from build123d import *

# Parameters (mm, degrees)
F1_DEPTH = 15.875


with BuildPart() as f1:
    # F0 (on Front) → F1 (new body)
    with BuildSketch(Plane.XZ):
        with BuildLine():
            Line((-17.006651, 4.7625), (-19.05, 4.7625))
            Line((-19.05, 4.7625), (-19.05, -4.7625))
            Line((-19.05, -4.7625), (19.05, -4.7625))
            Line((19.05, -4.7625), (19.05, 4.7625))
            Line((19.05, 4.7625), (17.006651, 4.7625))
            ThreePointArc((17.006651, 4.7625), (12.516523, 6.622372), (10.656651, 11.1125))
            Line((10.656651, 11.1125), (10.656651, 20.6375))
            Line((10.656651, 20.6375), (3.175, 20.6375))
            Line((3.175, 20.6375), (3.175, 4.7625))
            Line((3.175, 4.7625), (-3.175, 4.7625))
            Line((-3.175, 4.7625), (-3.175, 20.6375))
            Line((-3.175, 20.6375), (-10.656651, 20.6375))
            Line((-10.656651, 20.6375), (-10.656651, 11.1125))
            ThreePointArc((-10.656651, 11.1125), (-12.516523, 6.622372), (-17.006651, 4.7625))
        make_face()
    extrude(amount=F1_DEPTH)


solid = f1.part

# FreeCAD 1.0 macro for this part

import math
import FreeCAD as App
import Part
import Sketcher
Q = App.Units.Quantity

doc = App.newDocument("Part")
params = doc.addObject("Spreadsheet::Sheet", "Params")
for row, (alias, value) in enumerate([
    ("sketch1_radius", "0.25 in"),
    ("sketch1_width", "1.5 in"),
    ("sketch1_width2", "0.25 in"),
    ("pad1_length", "0.625 in"),
], start=1):
    params.set(f"A{row}", alias)
    params.set(f"B{row}", "=" + value)
    params.setAlias(f"B{row}", alias)

body = doc.addObject("PartDesign::Body", "Body")

# Sketch on XZ plane
sketch1 = doc.addObject("Sketcher::SketchObject", "Sketch")
body.addObject(sketch1)
sketch1.AttachmentSupport = (doc.XZ_Plane, [""])
sketch1.MapMode = "FlatFace"
sketch1.addGeometry([
    Part.LineSegment(App.Vector(-17, 4.8, 0), App.Vector(-19.1, 4.8, 0)),  # 0
    Part.LineSegment(App.Vector(-19.1, 4.8, 0), App.Vector(-19.1, -4.8, 0)),  # 1
    Part.LineSegment(App.Vector(-19.1, -4.8, 0), App.Vector(19.1, -4.8, 0)),  # 2
    Part.LineSegment(App.Vector(19.1, -4.8, 0), App.Vector(19.1, 4.8, 0)),  # 3
    Part.LineSegment(App.Vector(19.1, 4.8, 0), App.Vector(17, 4.8, 0)),  # 4
    Part.ArcOfCircle(Part.Circle(App.Vector(17, 11.1, 0), App.Vector(0, 0, 1), 6.4), math.radians(-180), math.radians(-90)),  # 5
    Part.LineSegment(App.Vector(10.7, 11.1, 0), App.Vector(10.7, 20.6, 0)),  # 6
    Part.LineSegment(App.Vector(10.7, 20.6, 0), App.Vector(3.2, 20.6, 0)),  # 7
    Part.LineSegment(App.Vector(3.2, 20.6, 0), App.Vector(3.2, 4.8, 0)),  # 8
    Part.LineSegment(App.Vector(3.2, 4.8, 0), App.Vector(-3.2, 4.8, 0)),  # 9
    Part.LineSegment(App.Vector(-3.2, 4.8, 0), App.Vector(-3.2, 20.6, 0)),  # 10
    Part.LineSegment(App.Vector(-3.2, 20.6, 0), App.Vector(-10.7, 20.6, 0)),  # 11
    Part.LineSegment(App.Vector(-10.7, 20.6, 0), App.Vector(-10.7, 11.1, 0)),  # 12
    Part.ArcOfCircle(Part.Circle(App.Vector(-17, 11.1, 0), App.Vector(0, 0, 1), 6.4), math.radians(-90), math.radians(0)),  # 13
], False)
sketch1.addConstraint([
    Sketcher.Constraint("Coincident", 0, 2, 1, 1),
    Sketcher.Constraint("Coincident", 1, 2, 2, 1),
    Sketcher.Constraint("Coincident", 2, 2, 3, 1),
    Sketcher.Constraint("Coincident", 3, 2, 4, 1),
    Sketcher.Constraint("Tangent", 4, 2, 5, 2),
    Sketcher.Constraint("Tangent", 5, 1, 6, 1),
    Sketcher.Constraint("Coincident", 6, 2, 7, 1),
    Sketcher.Constraint("Coincident", 7, 2, 8, 1),
    Sketcher.Constraint("Coincident", 8, 2, 9, 1),
    Sketcher.Constraint("Coincident", 9, 2, 10, 1),
    Sketcher.Constraint("Coincident", 10, 2, 11, 1),
    Sketcher.Constraint("Coincident", 11, 2, 12, 1),
    Sketcher.Constraint("Tangent", 12, 2, 13, 2),
    Sketcher.Constraint("Tangent", 13, 1, 0, 1),
    Sketcher.Constraint("Horizontal", 0),
    Sketcher.Constraint("Vertical", 1),
    Sketcher.Constraint("Horizontal", 2),
    Sketcher.Constraint("Vertical", 3),
    Sketcher.Constraint("Horizontal", 4),
    Sketcher.Constraint("Vertical", 6),
    Sketcher.Constraint("Horizontal", 7),
    Sketcher.Constraint("Vertical", 8),
    Sketcher.Constraint("Horizontal", 9),
    Sketcher.Constraint("Vertical", 10),
    Sketcher.Constraint("Horizontal", 11),
    Sketcher.Constraint("Vertical", 12),
    Sketcher.Constraint("Equal", 5, 13),
    Sketcher.Constraint("Symmetric", 0, 2, 2, 2, -1, 1),
    Sketcher.Constraint("Symmetric", 5, 3, 13, 3, -2),
    Sketcher.Constraint("Symmetric", 7, 2, 10, 2, -2),
    Sketcher.Constraint("Horizontal", 4, 2, 8, 2),
    Sketcher.Constraint("Equal", 3, 6),
    Sketcher.Constraint("Radius", 5, Q("0.25 in")),
    Sketcher.Constraint("DistanceX", 2, 1, 2, 2, Q("1.5 in")),
    Sketcher.Constraint("DistanceY", 2, 2, 6, 2, Q("1 in")),
    Sketcher.Constraint("DistanceX", 9, 2, 9, 1, Q("0.25 in")),
    Sketcher.Constraint("DistanceX", 0, 2, 0, 1, Q("2.043349 mm")),
])
sketch1.setExpression("Constraints[32]", "Params.sketch1_radius")
sketch1.setExpression("Constraints[33]", "Params.sketch1_width")
sketch1.setExpression("Constraints[35]", "Params.sketch1_width2")
pad1 = doc.addObject("PartDesign::Pad", "Pad")
body.addObject(pad1)
pad1.Profile = sketch1
pad1.setExpression("Length", "Params.pad1_length")

doc.recompute()
